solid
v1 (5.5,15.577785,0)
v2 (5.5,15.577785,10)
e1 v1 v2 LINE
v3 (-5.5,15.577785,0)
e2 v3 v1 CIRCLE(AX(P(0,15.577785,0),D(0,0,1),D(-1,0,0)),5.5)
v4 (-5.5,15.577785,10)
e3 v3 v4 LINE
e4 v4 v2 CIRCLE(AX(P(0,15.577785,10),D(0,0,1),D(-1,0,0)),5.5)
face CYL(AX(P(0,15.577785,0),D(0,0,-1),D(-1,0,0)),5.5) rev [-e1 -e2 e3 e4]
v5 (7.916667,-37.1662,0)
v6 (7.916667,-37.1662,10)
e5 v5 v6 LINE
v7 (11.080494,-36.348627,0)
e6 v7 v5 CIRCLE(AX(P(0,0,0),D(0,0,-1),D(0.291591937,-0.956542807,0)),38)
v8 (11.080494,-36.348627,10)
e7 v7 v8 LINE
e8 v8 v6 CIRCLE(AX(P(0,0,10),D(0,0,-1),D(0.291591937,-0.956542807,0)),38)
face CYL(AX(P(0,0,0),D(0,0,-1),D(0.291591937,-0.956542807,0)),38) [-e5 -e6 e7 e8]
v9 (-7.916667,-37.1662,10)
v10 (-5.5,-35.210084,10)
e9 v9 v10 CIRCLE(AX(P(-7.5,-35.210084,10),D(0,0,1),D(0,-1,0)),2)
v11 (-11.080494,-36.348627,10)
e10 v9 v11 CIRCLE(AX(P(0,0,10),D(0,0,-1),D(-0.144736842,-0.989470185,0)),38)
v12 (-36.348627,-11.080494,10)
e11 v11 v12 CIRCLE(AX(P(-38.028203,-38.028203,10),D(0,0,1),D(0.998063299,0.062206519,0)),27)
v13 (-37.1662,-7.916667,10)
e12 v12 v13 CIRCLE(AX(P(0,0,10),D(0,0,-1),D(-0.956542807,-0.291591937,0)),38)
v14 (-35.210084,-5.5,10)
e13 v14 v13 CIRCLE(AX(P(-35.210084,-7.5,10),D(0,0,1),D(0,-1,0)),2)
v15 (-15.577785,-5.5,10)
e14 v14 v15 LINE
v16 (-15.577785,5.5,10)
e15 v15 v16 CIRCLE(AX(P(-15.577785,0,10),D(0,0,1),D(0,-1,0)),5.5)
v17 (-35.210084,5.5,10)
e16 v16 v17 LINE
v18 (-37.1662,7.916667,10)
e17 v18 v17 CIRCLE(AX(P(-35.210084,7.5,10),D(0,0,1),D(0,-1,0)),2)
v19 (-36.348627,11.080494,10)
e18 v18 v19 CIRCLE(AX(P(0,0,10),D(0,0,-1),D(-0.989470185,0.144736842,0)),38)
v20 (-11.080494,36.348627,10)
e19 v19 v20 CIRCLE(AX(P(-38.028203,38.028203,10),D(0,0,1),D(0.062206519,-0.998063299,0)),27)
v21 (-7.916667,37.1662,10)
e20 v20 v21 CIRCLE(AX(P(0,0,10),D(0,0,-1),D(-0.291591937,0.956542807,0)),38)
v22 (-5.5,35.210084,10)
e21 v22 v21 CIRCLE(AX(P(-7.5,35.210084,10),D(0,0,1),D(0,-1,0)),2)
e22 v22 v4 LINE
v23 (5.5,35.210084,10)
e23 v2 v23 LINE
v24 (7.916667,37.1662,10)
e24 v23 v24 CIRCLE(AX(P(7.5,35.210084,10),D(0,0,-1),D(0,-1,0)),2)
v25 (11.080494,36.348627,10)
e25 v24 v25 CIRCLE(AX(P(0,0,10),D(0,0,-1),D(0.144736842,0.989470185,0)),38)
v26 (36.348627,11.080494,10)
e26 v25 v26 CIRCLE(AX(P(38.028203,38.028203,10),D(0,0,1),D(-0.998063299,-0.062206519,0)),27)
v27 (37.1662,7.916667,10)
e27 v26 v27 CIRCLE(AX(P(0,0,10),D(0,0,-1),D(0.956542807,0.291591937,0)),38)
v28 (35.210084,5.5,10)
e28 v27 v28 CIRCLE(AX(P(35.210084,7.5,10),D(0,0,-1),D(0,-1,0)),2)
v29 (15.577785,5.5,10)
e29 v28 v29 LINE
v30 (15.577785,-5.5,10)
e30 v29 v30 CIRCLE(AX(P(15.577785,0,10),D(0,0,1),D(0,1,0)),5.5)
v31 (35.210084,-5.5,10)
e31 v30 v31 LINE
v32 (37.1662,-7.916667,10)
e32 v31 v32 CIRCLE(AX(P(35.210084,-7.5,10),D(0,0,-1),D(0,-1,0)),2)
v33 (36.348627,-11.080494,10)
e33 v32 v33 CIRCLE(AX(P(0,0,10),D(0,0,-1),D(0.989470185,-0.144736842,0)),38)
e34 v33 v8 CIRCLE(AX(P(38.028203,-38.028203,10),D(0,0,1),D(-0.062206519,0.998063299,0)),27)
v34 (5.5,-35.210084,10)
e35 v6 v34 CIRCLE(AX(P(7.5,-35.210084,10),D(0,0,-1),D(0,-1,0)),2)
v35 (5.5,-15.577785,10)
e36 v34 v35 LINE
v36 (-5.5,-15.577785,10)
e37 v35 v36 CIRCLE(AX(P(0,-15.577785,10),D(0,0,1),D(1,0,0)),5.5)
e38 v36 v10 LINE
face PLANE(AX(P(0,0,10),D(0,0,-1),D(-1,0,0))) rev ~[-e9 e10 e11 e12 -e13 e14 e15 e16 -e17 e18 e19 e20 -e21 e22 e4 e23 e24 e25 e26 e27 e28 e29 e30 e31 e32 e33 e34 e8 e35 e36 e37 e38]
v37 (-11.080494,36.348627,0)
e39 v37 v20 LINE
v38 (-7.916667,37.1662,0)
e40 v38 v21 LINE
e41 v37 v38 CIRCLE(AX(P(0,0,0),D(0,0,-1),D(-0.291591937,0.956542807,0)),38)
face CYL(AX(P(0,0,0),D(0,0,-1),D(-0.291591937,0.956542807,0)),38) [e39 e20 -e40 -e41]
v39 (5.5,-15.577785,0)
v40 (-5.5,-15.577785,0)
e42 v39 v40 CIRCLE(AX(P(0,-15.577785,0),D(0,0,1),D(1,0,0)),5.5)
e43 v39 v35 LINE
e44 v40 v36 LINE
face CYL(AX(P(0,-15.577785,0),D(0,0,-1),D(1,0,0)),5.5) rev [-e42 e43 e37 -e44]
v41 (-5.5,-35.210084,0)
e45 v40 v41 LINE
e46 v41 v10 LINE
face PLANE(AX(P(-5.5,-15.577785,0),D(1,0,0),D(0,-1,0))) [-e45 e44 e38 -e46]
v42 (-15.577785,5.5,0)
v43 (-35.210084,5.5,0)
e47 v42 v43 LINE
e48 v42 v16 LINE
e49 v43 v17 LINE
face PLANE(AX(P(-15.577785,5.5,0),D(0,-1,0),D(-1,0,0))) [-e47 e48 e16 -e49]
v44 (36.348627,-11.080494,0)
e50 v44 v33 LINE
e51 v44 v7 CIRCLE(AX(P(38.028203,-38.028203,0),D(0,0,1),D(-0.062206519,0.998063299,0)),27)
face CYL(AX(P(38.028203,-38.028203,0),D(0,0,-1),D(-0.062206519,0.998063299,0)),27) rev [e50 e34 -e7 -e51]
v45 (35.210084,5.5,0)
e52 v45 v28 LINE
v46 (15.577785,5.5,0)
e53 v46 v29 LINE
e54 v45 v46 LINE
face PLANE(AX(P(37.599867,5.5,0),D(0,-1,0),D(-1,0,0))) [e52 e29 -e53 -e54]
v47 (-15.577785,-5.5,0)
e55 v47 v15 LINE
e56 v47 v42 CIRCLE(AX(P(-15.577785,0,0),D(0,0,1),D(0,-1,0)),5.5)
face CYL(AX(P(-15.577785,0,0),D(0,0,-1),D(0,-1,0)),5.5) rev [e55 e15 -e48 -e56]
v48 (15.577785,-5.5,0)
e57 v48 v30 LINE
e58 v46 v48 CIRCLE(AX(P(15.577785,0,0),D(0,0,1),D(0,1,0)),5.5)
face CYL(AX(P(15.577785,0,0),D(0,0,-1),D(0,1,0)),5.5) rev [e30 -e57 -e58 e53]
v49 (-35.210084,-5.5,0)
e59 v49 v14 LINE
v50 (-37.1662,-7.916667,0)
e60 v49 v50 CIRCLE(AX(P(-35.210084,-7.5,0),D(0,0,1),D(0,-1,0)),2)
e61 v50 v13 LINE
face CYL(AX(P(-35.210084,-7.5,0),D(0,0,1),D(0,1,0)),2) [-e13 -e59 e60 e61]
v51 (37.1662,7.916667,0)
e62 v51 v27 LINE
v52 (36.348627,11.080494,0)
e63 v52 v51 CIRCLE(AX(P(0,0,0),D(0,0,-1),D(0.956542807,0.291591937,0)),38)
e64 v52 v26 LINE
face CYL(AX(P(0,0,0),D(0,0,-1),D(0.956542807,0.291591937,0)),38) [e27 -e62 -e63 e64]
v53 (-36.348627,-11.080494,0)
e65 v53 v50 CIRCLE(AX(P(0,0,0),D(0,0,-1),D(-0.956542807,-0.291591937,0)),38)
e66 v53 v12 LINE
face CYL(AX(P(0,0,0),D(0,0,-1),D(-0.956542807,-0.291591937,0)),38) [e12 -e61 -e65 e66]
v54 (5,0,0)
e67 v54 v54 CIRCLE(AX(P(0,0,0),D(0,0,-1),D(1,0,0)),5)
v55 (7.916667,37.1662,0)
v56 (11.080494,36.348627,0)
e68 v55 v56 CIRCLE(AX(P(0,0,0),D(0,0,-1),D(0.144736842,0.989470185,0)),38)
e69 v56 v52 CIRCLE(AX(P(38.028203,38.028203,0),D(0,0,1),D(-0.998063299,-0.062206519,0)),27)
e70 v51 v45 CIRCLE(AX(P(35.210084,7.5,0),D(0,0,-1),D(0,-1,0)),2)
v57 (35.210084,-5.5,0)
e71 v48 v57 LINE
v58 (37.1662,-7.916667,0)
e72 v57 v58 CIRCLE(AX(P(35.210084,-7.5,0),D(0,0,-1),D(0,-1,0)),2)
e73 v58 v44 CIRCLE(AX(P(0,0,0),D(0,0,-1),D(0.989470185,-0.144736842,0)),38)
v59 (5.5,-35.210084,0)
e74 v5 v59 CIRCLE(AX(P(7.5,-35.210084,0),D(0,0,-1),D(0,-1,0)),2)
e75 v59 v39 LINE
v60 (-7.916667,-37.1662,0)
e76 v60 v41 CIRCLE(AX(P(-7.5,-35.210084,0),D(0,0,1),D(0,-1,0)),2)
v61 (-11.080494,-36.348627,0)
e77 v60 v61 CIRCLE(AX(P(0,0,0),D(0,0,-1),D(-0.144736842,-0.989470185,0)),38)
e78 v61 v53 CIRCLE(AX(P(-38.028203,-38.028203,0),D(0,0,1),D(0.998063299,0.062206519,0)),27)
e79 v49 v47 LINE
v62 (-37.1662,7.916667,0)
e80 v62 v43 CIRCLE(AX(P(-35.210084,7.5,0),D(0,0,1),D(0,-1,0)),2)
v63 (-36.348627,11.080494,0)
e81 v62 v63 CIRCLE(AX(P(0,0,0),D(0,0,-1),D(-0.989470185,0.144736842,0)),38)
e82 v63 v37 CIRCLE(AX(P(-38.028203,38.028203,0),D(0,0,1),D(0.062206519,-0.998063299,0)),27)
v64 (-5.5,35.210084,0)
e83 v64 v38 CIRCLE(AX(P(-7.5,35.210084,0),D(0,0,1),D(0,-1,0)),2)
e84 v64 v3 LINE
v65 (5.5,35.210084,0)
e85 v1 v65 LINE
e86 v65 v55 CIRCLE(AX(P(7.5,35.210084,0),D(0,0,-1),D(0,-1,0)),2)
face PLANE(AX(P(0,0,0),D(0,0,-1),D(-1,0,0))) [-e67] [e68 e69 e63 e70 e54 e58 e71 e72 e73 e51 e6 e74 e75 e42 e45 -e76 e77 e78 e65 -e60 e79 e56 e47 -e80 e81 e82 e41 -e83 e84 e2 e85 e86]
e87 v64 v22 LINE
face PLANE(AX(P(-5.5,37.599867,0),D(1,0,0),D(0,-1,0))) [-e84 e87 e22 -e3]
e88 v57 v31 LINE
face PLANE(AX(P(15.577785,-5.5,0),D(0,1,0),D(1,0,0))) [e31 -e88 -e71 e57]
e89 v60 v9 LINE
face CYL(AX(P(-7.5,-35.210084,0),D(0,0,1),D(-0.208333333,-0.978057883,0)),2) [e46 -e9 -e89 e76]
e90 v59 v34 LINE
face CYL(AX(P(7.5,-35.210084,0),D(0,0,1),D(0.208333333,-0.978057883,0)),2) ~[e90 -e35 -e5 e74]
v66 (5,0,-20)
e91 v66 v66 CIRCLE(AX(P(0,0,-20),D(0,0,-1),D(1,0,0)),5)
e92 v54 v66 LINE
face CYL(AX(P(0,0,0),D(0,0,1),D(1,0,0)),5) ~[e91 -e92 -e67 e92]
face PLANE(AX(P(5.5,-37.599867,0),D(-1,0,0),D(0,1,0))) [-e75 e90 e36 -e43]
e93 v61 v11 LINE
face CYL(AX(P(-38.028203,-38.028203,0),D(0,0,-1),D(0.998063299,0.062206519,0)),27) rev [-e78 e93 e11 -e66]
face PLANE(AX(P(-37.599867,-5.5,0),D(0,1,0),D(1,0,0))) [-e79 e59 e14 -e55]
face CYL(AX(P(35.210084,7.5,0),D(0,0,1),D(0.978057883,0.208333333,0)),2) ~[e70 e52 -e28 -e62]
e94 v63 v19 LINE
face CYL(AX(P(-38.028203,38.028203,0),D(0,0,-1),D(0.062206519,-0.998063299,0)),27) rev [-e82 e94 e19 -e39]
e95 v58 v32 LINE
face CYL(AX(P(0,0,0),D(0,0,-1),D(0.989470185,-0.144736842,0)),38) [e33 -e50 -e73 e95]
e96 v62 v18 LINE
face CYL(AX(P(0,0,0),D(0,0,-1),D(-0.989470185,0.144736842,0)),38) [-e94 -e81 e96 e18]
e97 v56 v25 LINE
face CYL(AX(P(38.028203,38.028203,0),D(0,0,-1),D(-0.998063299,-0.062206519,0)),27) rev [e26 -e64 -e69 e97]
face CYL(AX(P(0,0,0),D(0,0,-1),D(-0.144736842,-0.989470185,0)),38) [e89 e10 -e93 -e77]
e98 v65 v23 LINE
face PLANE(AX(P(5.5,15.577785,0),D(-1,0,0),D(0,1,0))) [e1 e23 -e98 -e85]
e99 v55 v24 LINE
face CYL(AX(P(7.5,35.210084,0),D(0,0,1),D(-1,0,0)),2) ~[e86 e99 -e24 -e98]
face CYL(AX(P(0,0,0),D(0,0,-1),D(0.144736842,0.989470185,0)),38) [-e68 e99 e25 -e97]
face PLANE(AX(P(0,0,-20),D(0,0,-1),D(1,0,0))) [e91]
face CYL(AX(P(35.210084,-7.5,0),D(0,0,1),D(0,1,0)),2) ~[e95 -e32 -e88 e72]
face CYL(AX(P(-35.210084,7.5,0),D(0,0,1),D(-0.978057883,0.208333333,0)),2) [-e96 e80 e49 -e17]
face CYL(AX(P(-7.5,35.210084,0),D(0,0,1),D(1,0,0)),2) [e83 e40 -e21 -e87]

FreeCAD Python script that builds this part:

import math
import FreeCAD as App
import Part
import Sketcher
from FreeCAD import Vector


def edges_at(feature, points):
    """Names of the edges that pass closest to the given points."""
    edges = feature.Shape.Edges
    near = lambda p: min(range(len(edges)), key=lambda i: edges[i].distToShape(Part.Vertex(*p))[0])
    return sorted({f"Edge{near(p) + 1}" for p in points})

doc = App.newDocument("Part")
body = doc.addObject("PartDesign::Body", "Body")

# Sketch on XY plane
sketch1 = body.newObject("Sketcher::SketchObject", "Sketch")
sketch1.AttachmentSupport = (doc.getObject("XY_Plane"), [""])
sketch1.MapMode = "FlatFace"
sketch1.addGeometry(Part.LineSegment(Vector(-5.5, 15.577785, 0), Vector(-5.5, 37.599867, 0)), False)
sketch1.addGeometry(Part.ArcOfCircle(Part.Circle(Vector(0, 0, 0), Vector(0, 0, 1), 38), math.radians(98.322041), math.radians(106.953287)), False)
sketch1.addGeometry(Part.ArcOfCircle(Part.Circle(Vector(-38.028203, 38.028203, 0), Vector(0, 0, 1), 27), math.radians(-86.433526), math.radians(-3.566474)), False)
sketch1.addGeometry(Part.ArcOfCircle(Part.Circle(Vector(0, 0, 0), Vector(0, 0, 1), 38), math.radians(163.046713), math.radians(171.677959)), False)
sketch1.addGeometry(Part.LineSegment(Vector(-37.599867, 5.5, 0), Vector(-15.577785, 5.5, 0)), False)
sketch1.addGeometry(Part.ArcOfCircle(Part.Circle(Vector(-15.577785, 0, 0), Vector(0, 0, 1), 5.5), math.radians(-90), math.radians(90)), False)
sketch1.addGeometry(Part.LineSegment(Vector(-15.577785, -5.5, 0), Vector(-37.599867, -5.5, 0)), False)
sketch1.addGeometry(Part.ArcOfCircle(Part.Circle(Vector(0, 0, 0), Vector(0, 0, 1), 38), math.radians(-171.677959), math.radians(-163.046713)), False)
sketch1.addGeometry(Part.ArcOfCircle(Part.Circle(Vector(-38.028203, -38.028203, 0), Vector(0, 0, 1), 27), math.radians(3.566474), math.radians(86.433526)), False)
sketch1.addGeometry(Part.ArcOfCircle(Part.Circle(Vector(0, 0, 0), Vector(0, 0, 1), 38), math.radians(-106.953287), math.radians(-98.322041)), False)
sketch1.addGeometry(Part.LineSegment(Vector(-5.5, -37.599867, 0), Vector(-5.5, -15.577785, 0)), False)
sketch1.addGeometry(Part.ArcOfCircle(Part.Circle(Vector(0, -15.577785, 0), Vector(0, 0, 1), 5.5), math.radians(0), math.radians(180)), False)
sketch1.addGeometry(Part.LineSegment(Vector(5.5, -15.577785, 0), Vector(5.5, -37.599867, 0)), False)
sketch1.addGeometry(Part.ArcOfCircle(Part.Circle(Vector(0, 0, 0), Vector(0, 0, 1), 38), math.radians(-81.677959), math.radians(-73.046713)), False)
sketch1.addGeometry(Part.ArcOfCircle(Part.Circle(Vector(38.028203, -38.028203, 0), Vector(0, 0, 1), 27), math.radians(93.566474), math.radians(176.433526)), False)
sketch1.addGeometry(Part.ArcOfCircle(Part.Circle(Vector(0, 0, 0), Vector(0, 0, 1), 38), math.radians(-16.953287), math.radians(-8.322041)), False)
sketch1.addGeometry(Part.LineSegment(Vector(37.599867, -5.5, 0), Vector(15.577785, -5.5, 0)), False)
sketch1.addGeometry(Part.ArcOfCircle(Part.Circle(Vector(15.577785, 0, 0), Vector(0, 0, 1), 5.5), math.radians(90), math.radians(270)), False)
sketch1.addGeometry(Part.LineSegment(Vector(15.577785, 5.5, 0), Vector(37.599867, 5.5, 0)), False)
sketch1.addGeometry(Part.ArcOfCircle(Part.Circle(Vector(0, 0, 0), Vector(0, 0, 1), 38), math.radians(8.322041), math.radians(16.953287)), False)
sketch1.addGeometry(Part.ArcOfCircle(Part.Circle(Vector(38.028203, 38.028203, 0), Vector(0, 0, 1), 27), math.radians(-176.433526), math.radians(-93.566474)), False)
sketch1.addGeometry(Part.ArcOfCircle(Part.Circle(Vector(0, 0, 0), Vector(0, 0, 1), 38), math.radians(73.046713), math.radians(81.677959)), False)
sketch1.addGeometry(Part.LineSegment(Vector(5.5, 37.599867, 0), Vector(5.5, 15.577785, 0)), False)
sketch1.addGeometry(Part.ArcOfCircle(Part.Circle(Vector(0, 15.577785, 0), Vector(0, 0, 1), 5.5), math.radians(180), math.radians(360)), False)
sketch1.addConstraint(Sketcher.Constraint("Coincident", 0, 2, 1, 1))
sketch1.addConstraint(Sketcher.Constraint("Coincident", 1, 2, 2, 2))
sketch1.addConstraint(Sketcher.Constraint("Coincident", 2, 1, 3, 1))
sketch1.addConstraint(Sketcher.Constraint("Coincident", 3, 2, 4, 1))
sketch1.addConstraint(Sketcher.Constraint("Tangent", 4, 2, 5, 2))
sketch1.addConstraint(Sketcher.Constraint("Tangent", 5, 1, 6, 1))
sketch1.addConstraint(Sketcher.Constraint("Coincident", 6, 2, 7, 1))
sketch1.addConstraint(Sketcher.Constraint("Coincident", 7, 2, 8, 2))
sketch1.addConstraint(Sketcher.Constraint("Coincident", 8, 1, 9, 1))
sketch1.addConstraint(Sketcher.Constraint("Coincident", 9, 2, 10, 1))
sketch1.addConstraint(Sketcher.Constraint("Tangent", 10, 2, 11, 2))
sketch1.addConstraint(Sketcher.Constraint("Tangent", 11, 1, 12, 1))
sketch1.addConstraint(Sketcher.Constraint("Coincident", 12, 2, 13, 1))
sketch1.addConstraint(Sketcher.Constraint("Coincident", 13, 2, 14, 2))
sketch1.addConstraint(Sketcher.Constraint("Coincident", 14, 1, 15, 1))
sketch1.addConstraint(Sketcher.Constraint("Coincident", 15, 2, 16, 1))
sketch1.addConstraint(Sketcher.Constraint("Tangent", 16, 2, 17, 2))
sketch1.addConstraint(Sketcher.Constraint("Tangent", 17, 1, 18, 1))
sketch1.addConstraint(Sketcher.Constraint("Coincident", 18, 2, 19, 1))
sketch1.addConstraint(Sketcher.Constraint("Coincident", 19, 2, 20, 2))
sketch1.addConstraint(Sketcher.Constraint("Coincident", 20, 1, 21, 1))
sketch1.addConstraint(Sketcher.Constraint("Coincident", 21, 2, 22, 1))
sketch1.addConstraint(Sketcher.Constraint("Tangent", 22, 2, 23, 2))
sketch1.addConstraint(Sketcher.Constraint("Tangent", 23, 1, 0, 1))
sketch1.addConstraint(Sketcher.Constraint("Vertical", 0))
sketch1.addConstraint(Sketcher.Constraint("Horizontal", 4))
sketch1.addConstraint(Sketcher.Constraint("Horizontal", 6))
sketch1.addConstraint(Sketcher.Constraint("Vertical", 10))
sketch1.addConstraint(Sketcher.Constraint("Vertical", 12))
sketch1.addConstraint(Sketcher.Constraint("Horizontal", 16))
sketch1.addConstraint(Sketcher.Constraint("Horizontal", 18))
sketch1.addConstraint(Sketcher.Constraint("Vertical", 22))
sketch1.addConstraint(Sketcher.Constraint("Coincident", 1, 3, -1, 1))
sketch1.addConstraint(Sketcher.Constraint("Coincident", 3, 3, -1, 1))
sketch1.addConstraint(Sketcher.Constraint("Coincident", 7, 3, -1, 1))
sketch1.addConstraint(Sketcher.Constraint("Coincident", 9, 3, -1, 1))
sketch1.addConstraint(Sketcher.Constraint("Coincident", 13, 3, -1, 1))
sketch1.addConstraint(Sketcher.Constraint("Coincident", 15, 3, -1, 1))
sketch1.addConstraint(Sketcher.Constraint("Coincident", 19, 3, -1, 1))
sketch1.addConstraint(Sketcher.Constraint("Coincident", 21, 3, -1, 1))
sketch1.addConstraint(Sketcher.Constraint("Equal", 1, 3))
sketch1.addConstraint(Sketcher.Constraint("Equal", 3, 7))
sketch1.addConstraint(Sketcher.Constraint("Equal", 2, 8))
sketch1.addConstraint(Sketcher.Constraint("Equal", 7, 9))
sketch1.addConstraint(Sketcher.Constraint("Equal", 5, 11))
sketch1.addConstraint(Sketcher.Constraint("Equal", 9, 13))
sketch1.addConstraint(Sketcher.Constraint("Equal", 8, 14))
sketch1.addConstraint(Sketcher.Constraint("Equal", 13, 15))
sketch1.addConstraint(Sketcher.Constraint("Equal", 11, 17))
sketch1.addConstraint(Sketcher.Constraint("Equal", 15, 19))
sketch1.addConstraint(Sketcher.Constraint("Equal", 14, 20))
sketch1.addConstraint(Sketcher.Constraint("Equal", 19, 21))
sketch1.addConstraint(Sketcher.Constraint("Equal", 17, 23))
sketch1.addConstraint(Sketcher.Constraint("Symmetric", 2, 3, 14, 3, -1, 1))
sketch1.addConstraint(Sketcher.Constraint("Symmetric", 5, 3, 17, 3, -1, 1))
sketch1.addConstraint(Sketcher.Constraint("Symmetric", 8, 3, 20, 3, -1, 1))
sketch1.addConstraint(Sketcher.Constraint("Symmetric", 11, 3, 23, 3, -1, 1))
sketch1.addConstraint(Sketcher.Constraint("Symmetric", 8, 3, 14, 3, -2))
sketch1.addConstraint(Sketcher.Constraint("PointOnObject", 5, 3, -1))
sketch1.addConstraint(Sketcher.Constraint("PointOnObject", 11, 3, -2))
sketch1.addConstraint(Sketcher.Constraint("Equal", 18, 0))
sketch1.addConstraint(Sketcher.Constraint("Radius", 1, 38.0))
sketch1.addConstraint(Sketcher.Constraint("Radius", 2, 27.0))
sketch1.addConstraint(Sketcher.Constraint("Radius", 5, 5.5))
sketch1.addConstraint(Sketcher.Constraint("DistanceX", 4, 1, 4, 2, 22.022082))
sketch1.addConstraint(Sketcher.Constraint("DistanceY", 1, 2, 0, 2, 1.25124))
sketch1.addConstraint(Sketcher.Constraint("DistanceX", 2, 1, 5, 3, 20.770841))
pad1 = body.newObject("PartDesign::Pad", "Pad")
pad1.Profile = sketch1
pad1.Length = 10

# Sketch on XY plane
sketch2 = body.newObject("Sketcher::SketchObject", "Sketch001")
sketch2.AttachmentSupport = (doc.getObject("XY_Plane"), [""])
sketch2.MapMode = "FlatFace"
sketch2.addGeometry(Part.Circle(Vector(0, 0, 0), Vector(0, 0, 1), 5), False)
sketch2.addConstraint(Sketcher.Constraint("Coincident", 0, 3, -1, 1))
sketch2.addConstraint(Sketcher.Constraint("Diameter", 0, 10.0))
pad2 = body.newObject("PartDesign::Pad", "Pad001")
pad2.Profile = sketch2
pad2.Length = 20
pad2.Reversed = True
doc.recompute()

fillet = body.newObject("PartDesign::Fillet", "Fillet")
fillet.Base = (pad2, edges_at(pad2, [
    (-5.5, -37.6, 5),
    (-37.6, -5.5, 5),
    (-37.6, 5.5, 5),
    (-5.5, 37.6, 5),
    (5.5, 37.6, 5),
    (37.6, 5.5, 5),
    (37.6, -5.5, 5),
    (5.5, -37.6, 5),
]))
fillet.Radius = 2

doc.recompute()
